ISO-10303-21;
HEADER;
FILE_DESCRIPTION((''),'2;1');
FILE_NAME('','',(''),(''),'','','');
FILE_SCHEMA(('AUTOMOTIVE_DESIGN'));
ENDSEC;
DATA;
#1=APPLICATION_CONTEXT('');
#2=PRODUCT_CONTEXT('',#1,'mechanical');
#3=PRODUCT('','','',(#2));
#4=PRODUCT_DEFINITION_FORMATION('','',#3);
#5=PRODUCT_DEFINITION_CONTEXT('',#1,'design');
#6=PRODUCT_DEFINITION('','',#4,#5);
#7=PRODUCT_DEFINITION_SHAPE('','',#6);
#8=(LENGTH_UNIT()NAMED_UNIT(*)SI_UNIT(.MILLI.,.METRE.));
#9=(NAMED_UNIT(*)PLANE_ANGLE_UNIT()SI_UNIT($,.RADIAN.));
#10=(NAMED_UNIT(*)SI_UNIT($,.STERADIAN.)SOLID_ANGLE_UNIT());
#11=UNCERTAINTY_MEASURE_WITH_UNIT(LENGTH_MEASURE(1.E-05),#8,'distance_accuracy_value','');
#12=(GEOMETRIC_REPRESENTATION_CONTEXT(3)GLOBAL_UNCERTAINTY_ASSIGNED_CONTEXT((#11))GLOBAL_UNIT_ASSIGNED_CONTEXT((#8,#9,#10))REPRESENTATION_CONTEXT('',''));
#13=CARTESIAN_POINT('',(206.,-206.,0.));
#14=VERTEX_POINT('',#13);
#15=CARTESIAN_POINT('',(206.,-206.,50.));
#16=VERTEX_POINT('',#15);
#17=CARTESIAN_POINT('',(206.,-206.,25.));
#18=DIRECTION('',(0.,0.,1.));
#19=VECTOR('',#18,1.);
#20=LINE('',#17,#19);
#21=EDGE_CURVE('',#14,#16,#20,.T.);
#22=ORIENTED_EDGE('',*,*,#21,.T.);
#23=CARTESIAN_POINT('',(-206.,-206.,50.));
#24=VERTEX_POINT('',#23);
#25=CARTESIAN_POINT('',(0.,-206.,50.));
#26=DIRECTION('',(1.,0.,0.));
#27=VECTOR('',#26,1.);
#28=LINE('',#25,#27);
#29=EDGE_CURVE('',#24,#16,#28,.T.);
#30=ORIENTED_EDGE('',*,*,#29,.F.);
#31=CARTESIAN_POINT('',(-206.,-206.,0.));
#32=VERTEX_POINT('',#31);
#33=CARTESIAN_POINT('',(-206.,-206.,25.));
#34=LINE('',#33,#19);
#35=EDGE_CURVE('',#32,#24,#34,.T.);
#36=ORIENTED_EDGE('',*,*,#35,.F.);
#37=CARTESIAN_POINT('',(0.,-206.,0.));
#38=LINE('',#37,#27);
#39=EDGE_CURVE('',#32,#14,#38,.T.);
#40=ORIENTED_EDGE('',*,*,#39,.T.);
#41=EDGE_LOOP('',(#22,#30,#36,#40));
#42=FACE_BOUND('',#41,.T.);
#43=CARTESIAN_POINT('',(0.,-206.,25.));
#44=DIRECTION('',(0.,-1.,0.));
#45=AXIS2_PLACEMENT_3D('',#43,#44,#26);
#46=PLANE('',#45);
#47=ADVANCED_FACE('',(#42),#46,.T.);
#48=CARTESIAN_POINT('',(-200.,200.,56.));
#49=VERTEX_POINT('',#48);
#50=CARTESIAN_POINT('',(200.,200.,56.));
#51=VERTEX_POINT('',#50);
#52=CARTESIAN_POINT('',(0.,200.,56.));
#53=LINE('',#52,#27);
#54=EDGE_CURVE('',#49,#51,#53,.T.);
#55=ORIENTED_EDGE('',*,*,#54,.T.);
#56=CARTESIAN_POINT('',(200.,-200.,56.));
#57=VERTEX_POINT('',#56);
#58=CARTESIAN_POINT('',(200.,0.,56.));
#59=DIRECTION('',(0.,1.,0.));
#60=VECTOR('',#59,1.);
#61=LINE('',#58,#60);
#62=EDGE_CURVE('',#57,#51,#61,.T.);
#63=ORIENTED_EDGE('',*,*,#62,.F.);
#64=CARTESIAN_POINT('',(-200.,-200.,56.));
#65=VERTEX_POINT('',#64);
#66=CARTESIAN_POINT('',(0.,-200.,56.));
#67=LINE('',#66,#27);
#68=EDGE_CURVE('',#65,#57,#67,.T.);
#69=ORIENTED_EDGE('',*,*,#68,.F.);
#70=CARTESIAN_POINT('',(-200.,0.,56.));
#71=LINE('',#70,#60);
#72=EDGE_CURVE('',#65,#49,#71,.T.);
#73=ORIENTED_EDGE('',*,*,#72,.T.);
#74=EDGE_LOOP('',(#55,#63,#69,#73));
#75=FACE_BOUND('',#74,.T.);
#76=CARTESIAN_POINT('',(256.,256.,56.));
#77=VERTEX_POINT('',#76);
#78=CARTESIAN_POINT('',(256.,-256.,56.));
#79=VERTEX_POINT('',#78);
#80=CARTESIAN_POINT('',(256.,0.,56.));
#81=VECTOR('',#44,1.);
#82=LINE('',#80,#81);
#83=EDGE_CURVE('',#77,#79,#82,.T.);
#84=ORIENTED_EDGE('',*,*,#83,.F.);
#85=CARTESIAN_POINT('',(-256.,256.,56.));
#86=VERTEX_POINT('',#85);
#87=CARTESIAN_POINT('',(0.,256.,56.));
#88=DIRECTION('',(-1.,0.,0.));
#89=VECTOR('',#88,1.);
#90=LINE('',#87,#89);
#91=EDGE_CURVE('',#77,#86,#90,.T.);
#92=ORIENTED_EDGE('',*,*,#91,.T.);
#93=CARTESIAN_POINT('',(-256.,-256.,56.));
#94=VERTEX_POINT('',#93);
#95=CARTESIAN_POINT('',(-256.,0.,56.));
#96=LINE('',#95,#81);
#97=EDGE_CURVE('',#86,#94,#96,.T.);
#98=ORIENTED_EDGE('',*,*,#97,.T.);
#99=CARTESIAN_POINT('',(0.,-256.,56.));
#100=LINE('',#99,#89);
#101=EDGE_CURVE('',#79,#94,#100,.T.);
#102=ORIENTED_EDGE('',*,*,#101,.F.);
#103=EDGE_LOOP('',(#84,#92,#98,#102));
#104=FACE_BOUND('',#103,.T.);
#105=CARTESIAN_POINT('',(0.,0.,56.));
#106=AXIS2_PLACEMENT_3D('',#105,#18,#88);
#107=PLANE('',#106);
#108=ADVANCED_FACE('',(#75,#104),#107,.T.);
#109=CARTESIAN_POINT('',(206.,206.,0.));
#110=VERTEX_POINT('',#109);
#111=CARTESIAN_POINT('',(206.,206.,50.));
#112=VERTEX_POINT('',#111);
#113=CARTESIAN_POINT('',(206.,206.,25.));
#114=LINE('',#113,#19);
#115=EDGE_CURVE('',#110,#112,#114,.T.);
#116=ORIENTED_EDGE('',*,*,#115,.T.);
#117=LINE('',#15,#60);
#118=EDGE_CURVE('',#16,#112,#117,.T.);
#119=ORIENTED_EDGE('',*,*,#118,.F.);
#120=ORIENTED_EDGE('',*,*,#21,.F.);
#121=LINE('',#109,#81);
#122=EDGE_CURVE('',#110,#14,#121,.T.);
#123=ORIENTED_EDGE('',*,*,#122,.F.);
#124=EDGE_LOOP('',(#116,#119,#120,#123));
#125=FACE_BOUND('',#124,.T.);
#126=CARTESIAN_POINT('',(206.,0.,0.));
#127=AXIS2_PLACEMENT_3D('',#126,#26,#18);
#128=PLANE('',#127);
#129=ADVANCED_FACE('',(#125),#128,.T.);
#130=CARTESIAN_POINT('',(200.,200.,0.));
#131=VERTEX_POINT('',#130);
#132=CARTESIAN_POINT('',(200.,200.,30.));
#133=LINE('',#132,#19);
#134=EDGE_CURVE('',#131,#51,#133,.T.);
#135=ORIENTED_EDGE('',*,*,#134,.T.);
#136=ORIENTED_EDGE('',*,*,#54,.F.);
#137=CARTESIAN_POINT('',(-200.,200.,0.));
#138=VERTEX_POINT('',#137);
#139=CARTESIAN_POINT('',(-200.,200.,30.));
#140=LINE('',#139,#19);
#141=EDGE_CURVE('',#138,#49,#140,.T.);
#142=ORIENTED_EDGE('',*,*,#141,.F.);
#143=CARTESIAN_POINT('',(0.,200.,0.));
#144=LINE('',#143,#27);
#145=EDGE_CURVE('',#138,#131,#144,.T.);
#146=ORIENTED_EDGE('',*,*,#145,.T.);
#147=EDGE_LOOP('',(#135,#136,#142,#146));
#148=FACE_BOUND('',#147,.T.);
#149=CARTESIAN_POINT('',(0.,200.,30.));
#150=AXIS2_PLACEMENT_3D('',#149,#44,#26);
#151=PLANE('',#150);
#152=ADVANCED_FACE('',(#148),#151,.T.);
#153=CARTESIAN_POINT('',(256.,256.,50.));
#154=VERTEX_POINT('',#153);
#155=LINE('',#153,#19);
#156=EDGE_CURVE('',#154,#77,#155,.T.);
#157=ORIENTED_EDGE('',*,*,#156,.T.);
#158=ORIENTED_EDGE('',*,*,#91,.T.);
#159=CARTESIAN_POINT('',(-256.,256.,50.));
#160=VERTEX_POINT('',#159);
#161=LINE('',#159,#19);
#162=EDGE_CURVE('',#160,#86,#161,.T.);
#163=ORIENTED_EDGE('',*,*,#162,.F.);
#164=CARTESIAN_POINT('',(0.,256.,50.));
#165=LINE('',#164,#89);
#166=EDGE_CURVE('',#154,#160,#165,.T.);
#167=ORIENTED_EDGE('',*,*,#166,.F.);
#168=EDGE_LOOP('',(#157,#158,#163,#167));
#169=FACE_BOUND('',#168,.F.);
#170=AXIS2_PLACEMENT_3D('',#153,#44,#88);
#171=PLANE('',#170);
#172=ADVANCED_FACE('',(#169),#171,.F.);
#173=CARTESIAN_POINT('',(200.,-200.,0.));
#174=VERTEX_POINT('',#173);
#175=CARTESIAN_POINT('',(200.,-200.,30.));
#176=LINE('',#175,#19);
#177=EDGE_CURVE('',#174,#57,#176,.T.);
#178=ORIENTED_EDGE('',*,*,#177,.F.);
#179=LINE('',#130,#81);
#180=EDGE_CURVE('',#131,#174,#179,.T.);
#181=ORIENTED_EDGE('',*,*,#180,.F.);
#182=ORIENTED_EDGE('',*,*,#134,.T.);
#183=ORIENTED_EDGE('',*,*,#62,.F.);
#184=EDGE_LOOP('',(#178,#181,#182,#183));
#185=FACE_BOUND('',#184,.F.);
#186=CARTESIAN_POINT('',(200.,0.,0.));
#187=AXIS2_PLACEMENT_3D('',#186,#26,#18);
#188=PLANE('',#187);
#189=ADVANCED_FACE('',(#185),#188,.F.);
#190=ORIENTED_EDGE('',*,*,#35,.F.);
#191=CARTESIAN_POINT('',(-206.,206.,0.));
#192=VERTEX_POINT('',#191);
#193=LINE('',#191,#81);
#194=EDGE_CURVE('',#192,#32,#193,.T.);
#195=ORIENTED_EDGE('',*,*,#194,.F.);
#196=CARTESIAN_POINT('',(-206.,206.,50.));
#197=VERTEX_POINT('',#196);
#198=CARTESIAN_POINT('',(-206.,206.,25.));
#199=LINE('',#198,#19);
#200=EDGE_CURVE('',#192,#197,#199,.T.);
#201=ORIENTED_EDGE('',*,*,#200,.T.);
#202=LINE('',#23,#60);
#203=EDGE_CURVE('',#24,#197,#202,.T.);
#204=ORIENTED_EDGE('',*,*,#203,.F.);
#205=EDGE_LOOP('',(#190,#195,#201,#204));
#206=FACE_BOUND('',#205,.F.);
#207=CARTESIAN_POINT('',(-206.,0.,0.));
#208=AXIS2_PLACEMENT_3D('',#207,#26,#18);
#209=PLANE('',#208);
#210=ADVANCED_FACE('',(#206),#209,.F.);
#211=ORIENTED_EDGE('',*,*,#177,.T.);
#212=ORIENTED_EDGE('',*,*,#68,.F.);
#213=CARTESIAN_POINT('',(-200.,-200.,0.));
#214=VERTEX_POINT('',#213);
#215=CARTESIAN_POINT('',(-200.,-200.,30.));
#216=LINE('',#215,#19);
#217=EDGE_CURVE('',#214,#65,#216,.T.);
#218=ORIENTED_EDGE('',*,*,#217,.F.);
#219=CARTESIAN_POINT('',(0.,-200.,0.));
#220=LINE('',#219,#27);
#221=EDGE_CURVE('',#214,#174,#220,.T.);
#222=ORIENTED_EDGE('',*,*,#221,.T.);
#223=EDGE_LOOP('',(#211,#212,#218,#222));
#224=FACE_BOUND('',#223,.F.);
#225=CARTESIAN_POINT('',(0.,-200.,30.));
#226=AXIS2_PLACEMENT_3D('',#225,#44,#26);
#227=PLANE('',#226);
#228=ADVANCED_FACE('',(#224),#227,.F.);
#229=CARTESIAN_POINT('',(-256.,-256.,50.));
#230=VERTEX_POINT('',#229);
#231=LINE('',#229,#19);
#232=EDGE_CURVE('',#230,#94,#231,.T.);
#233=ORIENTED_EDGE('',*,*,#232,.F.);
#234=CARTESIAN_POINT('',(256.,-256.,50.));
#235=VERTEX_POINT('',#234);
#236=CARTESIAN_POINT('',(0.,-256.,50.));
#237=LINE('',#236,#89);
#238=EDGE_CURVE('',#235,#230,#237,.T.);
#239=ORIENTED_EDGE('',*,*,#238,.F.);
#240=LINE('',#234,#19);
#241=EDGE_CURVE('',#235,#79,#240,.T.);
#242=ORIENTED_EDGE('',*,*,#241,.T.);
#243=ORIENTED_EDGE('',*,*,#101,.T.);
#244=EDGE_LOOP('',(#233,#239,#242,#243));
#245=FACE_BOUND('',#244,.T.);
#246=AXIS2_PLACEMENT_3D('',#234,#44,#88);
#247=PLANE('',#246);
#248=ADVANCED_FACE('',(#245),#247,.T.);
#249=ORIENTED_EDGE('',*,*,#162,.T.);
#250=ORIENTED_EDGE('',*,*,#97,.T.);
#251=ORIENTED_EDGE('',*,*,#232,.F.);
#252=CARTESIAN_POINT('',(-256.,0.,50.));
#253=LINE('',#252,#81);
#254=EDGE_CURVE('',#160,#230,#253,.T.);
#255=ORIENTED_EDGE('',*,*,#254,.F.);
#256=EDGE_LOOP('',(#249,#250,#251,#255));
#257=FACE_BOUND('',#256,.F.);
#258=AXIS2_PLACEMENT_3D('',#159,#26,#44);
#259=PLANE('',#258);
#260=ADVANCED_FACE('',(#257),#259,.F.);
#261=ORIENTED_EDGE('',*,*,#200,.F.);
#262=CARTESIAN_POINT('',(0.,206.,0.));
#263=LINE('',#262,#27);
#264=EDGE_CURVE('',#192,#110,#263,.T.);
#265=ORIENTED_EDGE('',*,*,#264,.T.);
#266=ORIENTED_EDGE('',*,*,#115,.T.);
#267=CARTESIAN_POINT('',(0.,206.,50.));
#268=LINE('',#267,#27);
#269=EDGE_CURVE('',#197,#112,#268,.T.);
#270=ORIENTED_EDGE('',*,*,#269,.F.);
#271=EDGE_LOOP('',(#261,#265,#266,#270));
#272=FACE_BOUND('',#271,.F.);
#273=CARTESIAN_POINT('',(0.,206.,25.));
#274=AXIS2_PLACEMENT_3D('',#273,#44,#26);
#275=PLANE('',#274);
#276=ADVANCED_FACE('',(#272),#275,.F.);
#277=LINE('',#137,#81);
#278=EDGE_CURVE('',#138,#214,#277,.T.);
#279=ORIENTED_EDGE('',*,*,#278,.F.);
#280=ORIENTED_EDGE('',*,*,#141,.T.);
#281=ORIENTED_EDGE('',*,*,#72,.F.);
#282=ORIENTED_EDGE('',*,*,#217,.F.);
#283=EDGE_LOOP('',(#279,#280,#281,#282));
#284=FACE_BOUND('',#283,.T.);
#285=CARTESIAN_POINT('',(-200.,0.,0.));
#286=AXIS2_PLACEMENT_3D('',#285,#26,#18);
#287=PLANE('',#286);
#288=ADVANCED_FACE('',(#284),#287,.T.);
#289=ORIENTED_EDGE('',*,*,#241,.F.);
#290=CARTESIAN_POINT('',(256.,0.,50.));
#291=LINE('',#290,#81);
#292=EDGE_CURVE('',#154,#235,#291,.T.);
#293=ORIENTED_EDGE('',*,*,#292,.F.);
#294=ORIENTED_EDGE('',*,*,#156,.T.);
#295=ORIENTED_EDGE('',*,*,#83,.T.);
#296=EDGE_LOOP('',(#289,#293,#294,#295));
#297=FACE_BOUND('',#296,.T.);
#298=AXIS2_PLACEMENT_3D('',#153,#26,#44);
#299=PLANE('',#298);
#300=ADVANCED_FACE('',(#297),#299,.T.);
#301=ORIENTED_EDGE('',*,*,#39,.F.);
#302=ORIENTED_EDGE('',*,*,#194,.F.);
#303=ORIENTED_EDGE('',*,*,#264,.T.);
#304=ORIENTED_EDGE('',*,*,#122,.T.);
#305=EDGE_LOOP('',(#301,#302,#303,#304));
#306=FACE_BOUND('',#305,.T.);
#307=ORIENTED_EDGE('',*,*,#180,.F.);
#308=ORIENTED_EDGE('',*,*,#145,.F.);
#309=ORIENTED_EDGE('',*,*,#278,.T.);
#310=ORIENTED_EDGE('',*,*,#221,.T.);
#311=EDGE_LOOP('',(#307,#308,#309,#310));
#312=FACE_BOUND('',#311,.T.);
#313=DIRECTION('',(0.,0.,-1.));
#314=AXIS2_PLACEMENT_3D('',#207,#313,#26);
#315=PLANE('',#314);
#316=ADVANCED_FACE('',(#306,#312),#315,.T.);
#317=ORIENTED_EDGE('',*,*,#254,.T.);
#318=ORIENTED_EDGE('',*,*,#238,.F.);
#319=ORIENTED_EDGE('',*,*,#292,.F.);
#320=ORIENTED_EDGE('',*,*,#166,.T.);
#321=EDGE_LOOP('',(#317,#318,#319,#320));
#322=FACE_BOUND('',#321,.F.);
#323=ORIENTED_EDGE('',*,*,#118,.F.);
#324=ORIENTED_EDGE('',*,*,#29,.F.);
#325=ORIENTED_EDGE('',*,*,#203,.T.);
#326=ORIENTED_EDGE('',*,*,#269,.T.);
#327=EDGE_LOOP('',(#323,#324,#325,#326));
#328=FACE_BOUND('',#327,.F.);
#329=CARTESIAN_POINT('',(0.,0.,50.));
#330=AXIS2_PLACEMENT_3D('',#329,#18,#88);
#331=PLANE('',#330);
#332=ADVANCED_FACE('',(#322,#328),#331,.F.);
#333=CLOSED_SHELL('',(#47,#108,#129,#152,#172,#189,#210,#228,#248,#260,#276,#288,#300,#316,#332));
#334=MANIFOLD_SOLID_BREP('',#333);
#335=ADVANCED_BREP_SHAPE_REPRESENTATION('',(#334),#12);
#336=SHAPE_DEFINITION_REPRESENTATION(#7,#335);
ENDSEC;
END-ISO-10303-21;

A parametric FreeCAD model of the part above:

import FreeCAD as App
import Part
import Sketcher
from FreeCAD import Vector

doc = App.newDocument("Part")
body = doc.addObject("PartDesign::Body", "Body")

# Sketch on XZ plane
sketch1 = body.newObject("Sketcher::SketchObject", "Sketch")
sketch1.AttachmentSupport = (doc.getObject("XZ_Plane"), [""])
sketch1.MapMode = "FlatFace"
sketch1.addGeometry(Part.LineSegment(Vector(-200, 60, 0), Vector(-200, 0, 0)), False)
sketch1.addGeometry(Part.LineSegment(Vector(-200, 0, 0), Vector(200, 0, 0)), False)
sketch1.addGeometry(Part.LineSegment(Vector(200, 0, 0), Vector(200, 60, 0)), False)
sketch1.addGeometry(Part.LineSegment(Vector(200, 60, 0), Vector(-200, 60, 0)), False)
sketch1.addConstraint(Sketcher.Constraint("Coincident", 0, 2, 1, 1))
sketch1.addConstraint(Sketcher.Constraint("Coincident", 1, 2, 2, 1))
sketch1.addConstraint(Sketcher.Constraint("Coincident", 2, 2, 3, 1))
sketch1.addConstraint(Sketcher.Constraint("Coincident", 3, 2, 0, 1))
sketch1.addConstraint(Sketcher.Constraint("Vertical", 0))
sketch1.addConstraint(Sketcher.Constraint("Horizontal", 1))
sketch1.addConstraint(Sketcher.Constraint("Vertical", 2))
sketch1.addConstraint(Sketcher.Constraint("Horizontal", 3))
sketch1.addConstraint(Sketcher.Constraint("Symmetric", 0, 2, 1, 2, -1, 1))
sketch1.addConstraint(Sketcher.Constraint("DistanceX", 1, 1, 1, 2, 400.0))
sketch1.addConstraint(Sketcher.Constraint("DistanceY", 0, 2, 0, 1, 60.0))
pad1 = body.newObject("PartDesign::Pad", "Pad")
pad1.Profile = sketch1
pad1.Length = 400
pad1.Midplane = True
body2 = doc.addObject("PartDesign::Body", "Body001")

# Sketch on XZ plane
sketch2 = body2.newObject("Sketcher::SketchObject", "Sketch001")
sketch2.AttachmentSupport = (doc.getObject("XZ_Plane001"), [""])
sketch2.MapMode = "FlatFace"
sketch2.addGeometry(Part.LineSegment(Vector(-206, 50, 0), Vector(-206, 0, 0)), False)
sketch2.addGeometry(Part.LineSegment(Vector(-206, 0, 0), Vector(206, 0, 0)), False)
sketch2.addGeometry(Part.LineSegment(Vector(206, 0, 0), Vector(206, 50, 0)), False)
sketch2.addGeometry(Part.LineSegment(Vector(206, 50, 0), Vector(-206, 50, 0)), False)
sketch2.addConstraint(Sketcher.Constraint("Coincident", 0, 2, 1, 1))
sketch2.addConstraint(Sketcher.Constraint("Coincident", 1, 2, 2, 1))
sketch2.addConstraint(Sketcher.Constraint("Coincident", 2, 2, 3, 1))
sketch2.addConstraint(Sketcher.Constraint("Coincident", 3, 2, 0, 1))
sketch2.addConstraint(Sketcher.Constraint("Vertical", 0))
sketch2.addConstraint(Sketcher.Constraint("Horizontal", 1))
sketch2.addConstraint(Sketcher.Constraint("Vertical", 2))
sketch2.addConstraint(Sketcher.Constraint("Horizontal", 3))
sketch2.addConstraint(Sketcher.Constraint("Symmetric", 0, 2, 1, 2, -1, 1))
sketch2.addConstraint(Sketcher.Constraint("DistanceX", 1, 1, 1, 2, 412.0))
sketch2.addConstraint(Sketcher.Constraint("DistanceY", 0, 2, 0, 1, 50.0))
pad2 = body2.newObject("PartDesign::Pad", "Pad001")
pad2.Profile = sketch2
pad2.Length = 412
pad2.Midplane = True

# Sketch on XY plane
sketch3 = body2.newObject("Sketcher::SketchObject", "Sketch002")
sketch3.AttachmentSupport = (doc.getObject("XY_Plane001"), [""])
sketch3.MapMode = "FlatFace"
sketch3.AttachmentOffset = App.Placement(Vector(0, 0, 50), App.Rotation())
sketch3.addGeometry(Part.LineSegment(Vector(256, -256, 0), Vector(256, 256, 0)), False)
sketch3.addGeometry(Part.LineSegment(Vector(256, 256, 0), Vector(-256, 256, 0)), False)
sketch3.addGeometry(Part.LineSegment(Vector(-256, 256, 0), Vector(-256, -256, 0)), False)
sketch3.addGeometry(Part.LineSegment(Vector(-256, -256, 0), Vector(256, -256, 0)), False)
sketch3.addConstraint(Sketcher.Constraint("Coincident", 0, 2, 1, 1))
sketch3.addConstraint(Sketcher.Constraint("Coincident", 1, 2, 2, 1))
sketch3.addConstraint(Sketcher.Constraint("Coincident", 2, 2, 3, 1))
sketch3.addConstraint(Sketcher.Constraint("Coincident", 3, 2, 0, 1))
sketch3.addConstraint(Sketcher.Constraint("Vertical", 0))
sketch3.addConstraint(Sketcher.Constraint("Horizontal", 1))
sketch3.addConstraint(Sketcher.Constraint("Vertical", 2))
sketch3.addConstraint(Sketcher.Constraint("Horizontal", 3))
sketch3.addConstraint(Sketcher.Constraint("Symmetric", 0, 2, 2, 2, -1, 1))
sketch3.addConstraint(Sketcher.Constraint("Equal", 3, 0))
sketch3.addConstraint(Sketcher.Constraint("DistanceX", 1, 2, 1, 1, 512.0))
pad3 = body2.newObject("PartDesign::Pad", "Pad002")
pad3.Profile = sketch3
pad3.Length = 6
doc.recompute()

boolean = body2.newObject("PartDesign::Boolean", "Boolean")
boolean.Type = "Cut"
boolean.addObjects([body])

doc.recompute()
